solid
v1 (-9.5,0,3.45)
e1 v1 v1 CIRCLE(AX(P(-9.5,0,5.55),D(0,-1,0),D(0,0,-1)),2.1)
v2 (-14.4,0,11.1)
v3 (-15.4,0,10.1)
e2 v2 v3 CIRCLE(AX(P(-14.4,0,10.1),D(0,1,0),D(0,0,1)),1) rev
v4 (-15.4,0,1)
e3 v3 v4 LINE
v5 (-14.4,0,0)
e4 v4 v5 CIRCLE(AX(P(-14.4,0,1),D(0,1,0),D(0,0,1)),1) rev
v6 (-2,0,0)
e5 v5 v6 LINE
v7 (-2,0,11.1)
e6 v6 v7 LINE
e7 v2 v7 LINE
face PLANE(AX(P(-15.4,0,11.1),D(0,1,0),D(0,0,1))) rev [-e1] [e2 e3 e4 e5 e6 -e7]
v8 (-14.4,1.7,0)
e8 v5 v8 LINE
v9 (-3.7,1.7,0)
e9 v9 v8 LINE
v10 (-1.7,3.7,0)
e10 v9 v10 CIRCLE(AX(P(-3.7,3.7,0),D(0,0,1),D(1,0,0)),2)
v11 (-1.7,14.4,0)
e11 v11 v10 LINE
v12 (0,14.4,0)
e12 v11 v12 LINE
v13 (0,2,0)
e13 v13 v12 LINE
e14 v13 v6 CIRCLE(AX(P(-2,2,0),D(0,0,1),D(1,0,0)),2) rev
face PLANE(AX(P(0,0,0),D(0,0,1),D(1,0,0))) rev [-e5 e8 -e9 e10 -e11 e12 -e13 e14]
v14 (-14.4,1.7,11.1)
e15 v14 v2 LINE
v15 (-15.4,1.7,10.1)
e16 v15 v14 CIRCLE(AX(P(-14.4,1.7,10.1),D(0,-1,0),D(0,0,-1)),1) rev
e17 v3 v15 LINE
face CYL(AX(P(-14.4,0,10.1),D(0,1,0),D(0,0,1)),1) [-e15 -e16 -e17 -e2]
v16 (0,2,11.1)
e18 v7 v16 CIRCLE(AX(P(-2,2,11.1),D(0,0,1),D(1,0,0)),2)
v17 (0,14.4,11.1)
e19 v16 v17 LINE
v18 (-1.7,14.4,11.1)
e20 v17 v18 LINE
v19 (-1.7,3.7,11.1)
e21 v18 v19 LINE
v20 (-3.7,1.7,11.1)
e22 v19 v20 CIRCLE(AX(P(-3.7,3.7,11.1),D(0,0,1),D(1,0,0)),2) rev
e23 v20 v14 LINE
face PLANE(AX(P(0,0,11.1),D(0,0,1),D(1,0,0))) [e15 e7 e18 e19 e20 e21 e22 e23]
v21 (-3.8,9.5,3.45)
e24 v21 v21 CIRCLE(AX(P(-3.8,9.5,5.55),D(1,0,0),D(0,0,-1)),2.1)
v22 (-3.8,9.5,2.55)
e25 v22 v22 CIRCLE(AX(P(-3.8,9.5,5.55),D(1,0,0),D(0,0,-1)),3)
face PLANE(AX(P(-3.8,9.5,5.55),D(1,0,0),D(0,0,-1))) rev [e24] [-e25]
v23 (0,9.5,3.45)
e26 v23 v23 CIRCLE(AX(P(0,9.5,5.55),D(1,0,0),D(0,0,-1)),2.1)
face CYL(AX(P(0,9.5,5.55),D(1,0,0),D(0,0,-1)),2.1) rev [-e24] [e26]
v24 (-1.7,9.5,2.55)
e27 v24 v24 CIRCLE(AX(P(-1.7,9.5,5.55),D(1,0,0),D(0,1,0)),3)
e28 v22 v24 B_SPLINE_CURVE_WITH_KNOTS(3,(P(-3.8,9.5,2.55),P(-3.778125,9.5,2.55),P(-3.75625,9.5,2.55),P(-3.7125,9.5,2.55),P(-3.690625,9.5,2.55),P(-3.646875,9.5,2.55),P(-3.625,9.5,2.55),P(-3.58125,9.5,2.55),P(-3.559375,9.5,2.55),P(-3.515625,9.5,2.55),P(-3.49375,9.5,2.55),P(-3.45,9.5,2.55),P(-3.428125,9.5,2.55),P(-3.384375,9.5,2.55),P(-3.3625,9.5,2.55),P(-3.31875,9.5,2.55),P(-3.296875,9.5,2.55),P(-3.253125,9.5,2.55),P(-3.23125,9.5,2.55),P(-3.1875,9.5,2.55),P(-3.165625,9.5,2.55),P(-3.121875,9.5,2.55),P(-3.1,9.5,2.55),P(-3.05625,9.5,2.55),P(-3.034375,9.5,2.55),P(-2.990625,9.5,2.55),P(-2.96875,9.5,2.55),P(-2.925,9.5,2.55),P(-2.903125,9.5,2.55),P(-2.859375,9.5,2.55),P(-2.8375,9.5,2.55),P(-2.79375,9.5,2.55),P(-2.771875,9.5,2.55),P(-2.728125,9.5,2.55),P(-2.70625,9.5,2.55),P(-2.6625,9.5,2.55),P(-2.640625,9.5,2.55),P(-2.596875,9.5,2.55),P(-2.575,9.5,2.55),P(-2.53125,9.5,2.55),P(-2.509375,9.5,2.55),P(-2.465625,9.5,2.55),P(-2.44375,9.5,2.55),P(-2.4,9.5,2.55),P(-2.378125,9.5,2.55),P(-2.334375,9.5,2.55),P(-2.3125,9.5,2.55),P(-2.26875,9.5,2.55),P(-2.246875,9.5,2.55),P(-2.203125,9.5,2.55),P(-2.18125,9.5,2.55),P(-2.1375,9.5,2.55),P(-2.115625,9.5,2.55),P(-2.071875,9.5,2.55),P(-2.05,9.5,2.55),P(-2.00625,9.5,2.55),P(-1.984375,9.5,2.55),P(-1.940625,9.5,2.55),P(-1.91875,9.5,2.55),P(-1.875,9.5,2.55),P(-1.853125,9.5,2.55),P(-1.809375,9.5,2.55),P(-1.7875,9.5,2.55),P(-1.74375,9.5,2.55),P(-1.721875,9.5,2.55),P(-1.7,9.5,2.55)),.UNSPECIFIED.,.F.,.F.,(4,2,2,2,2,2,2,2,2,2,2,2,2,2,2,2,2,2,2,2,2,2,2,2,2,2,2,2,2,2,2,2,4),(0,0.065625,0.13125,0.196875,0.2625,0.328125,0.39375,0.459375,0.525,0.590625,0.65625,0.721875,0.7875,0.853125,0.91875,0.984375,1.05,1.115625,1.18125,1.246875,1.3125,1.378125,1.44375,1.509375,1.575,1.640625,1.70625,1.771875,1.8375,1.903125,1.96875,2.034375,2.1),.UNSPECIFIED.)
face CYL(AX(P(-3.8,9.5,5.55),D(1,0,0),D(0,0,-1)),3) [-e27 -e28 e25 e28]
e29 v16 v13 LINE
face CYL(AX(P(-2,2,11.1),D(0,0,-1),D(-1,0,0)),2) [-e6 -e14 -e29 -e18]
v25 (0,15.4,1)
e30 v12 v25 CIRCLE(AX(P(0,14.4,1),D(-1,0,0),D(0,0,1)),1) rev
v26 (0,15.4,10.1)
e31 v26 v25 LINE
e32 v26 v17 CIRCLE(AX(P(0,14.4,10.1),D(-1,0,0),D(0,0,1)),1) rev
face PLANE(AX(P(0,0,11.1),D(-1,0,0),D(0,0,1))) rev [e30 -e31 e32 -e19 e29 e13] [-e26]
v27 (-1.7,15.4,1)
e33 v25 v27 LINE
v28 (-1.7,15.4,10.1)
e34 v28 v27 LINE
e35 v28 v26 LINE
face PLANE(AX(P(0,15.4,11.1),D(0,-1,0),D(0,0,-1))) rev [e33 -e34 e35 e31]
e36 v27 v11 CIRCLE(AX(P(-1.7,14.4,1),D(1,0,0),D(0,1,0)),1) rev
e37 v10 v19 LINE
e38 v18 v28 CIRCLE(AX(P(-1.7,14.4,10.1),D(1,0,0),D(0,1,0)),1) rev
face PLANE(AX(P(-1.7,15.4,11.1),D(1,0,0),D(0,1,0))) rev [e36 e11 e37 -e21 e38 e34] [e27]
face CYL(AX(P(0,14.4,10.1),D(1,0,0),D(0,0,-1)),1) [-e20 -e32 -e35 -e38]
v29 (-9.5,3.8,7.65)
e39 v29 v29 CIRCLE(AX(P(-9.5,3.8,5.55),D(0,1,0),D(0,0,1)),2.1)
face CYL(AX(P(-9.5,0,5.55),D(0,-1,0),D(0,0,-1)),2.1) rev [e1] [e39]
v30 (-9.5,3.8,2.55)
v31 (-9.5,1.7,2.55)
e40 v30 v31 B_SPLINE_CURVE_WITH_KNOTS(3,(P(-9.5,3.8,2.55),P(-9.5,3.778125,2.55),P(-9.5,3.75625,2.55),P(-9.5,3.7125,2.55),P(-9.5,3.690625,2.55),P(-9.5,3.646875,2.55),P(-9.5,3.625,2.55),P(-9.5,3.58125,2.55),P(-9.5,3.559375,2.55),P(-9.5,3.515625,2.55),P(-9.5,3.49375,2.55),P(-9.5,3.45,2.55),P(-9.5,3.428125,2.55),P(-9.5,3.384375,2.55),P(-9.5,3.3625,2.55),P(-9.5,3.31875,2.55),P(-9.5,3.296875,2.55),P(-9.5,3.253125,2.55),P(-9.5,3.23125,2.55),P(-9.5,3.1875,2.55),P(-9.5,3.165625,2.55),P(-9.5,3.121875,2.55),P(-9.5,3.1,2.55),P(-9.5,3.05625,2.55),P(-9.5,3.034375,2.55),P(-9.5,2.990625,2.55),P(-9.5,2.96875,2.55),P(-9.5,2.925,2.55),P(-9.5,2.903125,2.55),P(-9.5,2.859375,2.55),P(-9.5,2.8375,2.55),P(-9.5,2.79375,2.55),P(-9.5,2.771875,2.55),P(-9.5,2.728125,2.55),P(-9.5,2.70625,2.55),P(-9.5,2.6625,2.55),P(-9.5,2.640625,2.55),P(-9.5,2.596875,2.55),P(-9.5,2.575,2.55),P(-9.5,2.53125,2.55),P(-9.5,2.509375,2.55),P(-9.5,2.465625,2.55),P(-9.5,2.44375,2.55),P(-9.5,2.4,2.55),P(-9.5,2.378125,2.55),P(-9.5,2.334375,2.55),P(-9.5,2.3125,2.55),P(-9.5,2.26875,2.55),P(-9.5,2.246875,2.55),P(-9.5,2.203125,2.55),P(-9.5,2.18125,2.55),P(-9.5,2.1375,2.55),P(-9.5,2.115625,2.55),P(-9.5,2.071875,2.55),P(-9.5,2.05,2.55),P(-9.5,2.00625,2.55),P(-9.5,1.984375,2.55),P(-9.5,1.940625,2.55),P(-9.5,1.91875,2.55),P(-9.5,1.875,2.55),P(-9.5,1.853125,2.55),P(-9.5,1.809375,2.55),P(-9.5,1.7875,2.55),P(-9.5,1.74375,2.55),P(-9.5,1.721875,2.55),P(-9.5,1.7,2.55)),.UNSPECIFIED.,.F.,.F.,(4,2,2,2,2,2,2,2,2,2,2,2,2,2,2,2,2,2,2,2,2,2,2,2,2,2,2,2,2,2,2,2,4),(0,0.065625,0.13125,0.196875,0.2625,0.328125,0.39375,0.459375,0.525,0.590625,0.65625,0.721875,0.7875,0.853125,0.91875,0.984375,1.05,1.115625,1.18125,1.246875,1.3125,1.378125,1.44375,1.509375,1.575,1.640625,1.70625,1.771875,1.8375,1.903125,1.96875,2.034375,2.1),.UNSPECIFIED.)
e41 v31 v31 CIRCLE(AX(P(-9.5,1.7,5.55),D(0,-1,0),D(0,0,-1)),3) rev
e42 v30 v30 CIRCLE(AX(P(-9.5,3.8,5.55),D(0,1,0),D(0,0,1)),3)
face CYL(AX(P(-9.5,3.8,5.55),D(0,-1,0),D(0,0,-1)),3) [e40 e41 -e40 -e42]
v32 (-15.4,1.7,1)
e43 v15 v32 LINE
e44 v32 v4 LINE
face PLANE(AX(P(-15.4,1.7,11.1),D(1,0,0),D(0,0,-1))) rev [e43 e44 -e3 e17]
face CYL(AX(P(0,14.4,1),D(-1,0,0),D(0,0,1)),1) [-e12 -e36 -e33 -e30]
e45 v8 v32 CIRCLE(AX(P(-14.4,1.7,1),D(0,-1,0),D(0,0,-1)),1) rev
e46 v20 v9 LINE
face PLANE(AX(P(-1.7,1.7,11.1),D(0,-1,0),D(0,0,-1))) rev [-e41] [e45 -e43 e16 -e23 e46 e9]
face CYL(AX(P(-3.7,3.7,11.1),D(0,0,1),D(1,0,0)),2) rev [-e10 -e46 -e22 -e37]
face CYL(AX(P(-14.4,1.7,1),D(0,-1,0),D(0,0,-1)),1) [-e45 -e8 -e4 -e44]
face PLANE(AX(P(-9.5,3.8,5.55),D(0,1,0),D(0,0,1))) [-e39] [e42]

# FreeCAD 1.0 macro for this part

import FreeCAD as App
import Part
import Sketcher

V = App.Vector


def edges_at(feature, points):
    """Names of the edges that pass closest to the given points."""
    edges = feature.Shape.Edges
    near = lambda p: min(range(len(edges)), key=lambda i: edges[i].distToShape(Part.Vertex(*p))[0])
    return sorted({f"Edge{near(p) + 1}" for p in points})

doc = App.newDocument("Part")
params = doc.addObject("Spreadsheet::Sheet", "Params")
for row, (alias, value) in enumerate([
    ("sketch1_width", "1.7 mm"),
    ("sketch1_width2", "13.7 mm"),
    ("pad1_length", "11.1 mm"),
    ("fillet_radius", "1 mm"),
    ("sketch2_diameter", "6 mm"),
    ("pad2_length", "3.8 mm"),
    ("sketch3_diameter", "6 mm"),
    ("pad3_length", "3.8 mm"),
    ("fillet2_radius", "2 mm"),
    ("sketch4_diameter", "4.2 mm"),
    ("hole_diameter", "4.2 mm"),
    ("sketch5_diameter", "4.2 mm"),
    ("hole2_diameter", "4.2 mm"),
], start=1):
    params.set(f"A{row}", alias)
    params.set(f"B{row}", "=" + value)
    params.setAlias(f"B{row}", alias)

body = doc.addObject("PartDesign::Body", "Body")

# Sketch on XY plane
sketch1 = body.newObject("Sketcher::SketchObject", "Sketch")
sketch1.AttachmentSupport = (doc.getObject("XY_Plane"), [""])
sketch1.MapMode = "FlatFace"
sketch1.addGeometry(Part.LineSegment(V(0, 0, 0), V(0, 15.4, 0)), False)
sketch1.addGeometry(Part.LineSegment(V(0, 15.4, 0), V(-1.7, 15.4, 0)), False)
sketch1.addGeometry(Part.LineSegment(V(-1.7, 15.4, 0), V(-1.7, 1.7, 0)), False)
sketch1.addGeometry(Part.LineSegment(V(-1.7, 1.7, 0), V(-15.4, 1.7, 0)), False)
sketch1.addGeometry(Part.LineSegment(V(-15.4, 1.7, 0), V(-15.4, 0, 0)), False)
sketch1.addGeometry(Part.LineSegment(V(-15.4, 0, 0), V(0, 0, 0)), False)
sketch1.addConstraint(Sketcher.Constraint("Coincident", 0, 2, 1, 1))
sketch1.addConstraint(Sketcher.Constraint("Coincident", 1, 2, 2, 1))
sketch1.addConstraint(Sketcher.Constraint("Coincident", 2, 2, 3, 1))
sketch1.addConstraint(Sketcher.Constraint("Coincident", 3, 2, 4, 1))
sketch1.addConstraint(Sketcher.Constraint("Coincident", 4, 2, 5, 1))
sketch1.addConstraint(Sketcher.Constraint("Coincident", 5, 2, 0, 1))
sketch1.addConstraint(Sketcher.Constraint("Vertical", 0))
sketch1.addConstraint(Sketcher.Constraint("Horizontal", 1))
sketch1.addConstraint(Sketcher.Constraint("Vertical", 2))
sketch1.addConstraint(Sketcher.Constraint("Horizontal", 3))
sketch1.addConstraint(Sketcher.Constraint("Vertical", 4))
sketch1.addConstraint(Sketcher.Constraint("Horizontal", 5))
sketch1.addConstraint(Sketcher.Constraint("Coincident", 5, 2, -1, 1))
sketch1.addConstraint(Sketcher.Constraint("Equal", 5, 0))
sketch1.addConstraint(Sketcher.Constraint("Equal", 3, 2))
sketch1.addConstraint(Sketcher.Constraint("DistanceX", 1, 2, 1, 1, 1.7))
sketch1.addConstraint(Sketcher.Constraint("DistanceX", 3, 2, 3, 1, 13.7))
sketch1.setExpression("Constraints[15]", "Params.sketch1_width")
sketch1.setExpression("Constraints[16]", "Params.sketch1_width2")
pad1 = body.newObject("PartDesign::Pad", "Pad")
pad1.Profile = sketch1
pad1.setExpression("Length", "Params.pad1_length")
doc.recompute()

fillet = body.newObject("PartDesign::Fillet", "Fillet")
fillet.Base = (pad1, edges_at(pad1, [
    (-0.85, 15.4, 11.1),
    (-15.4, 0.85, 11.1),
    (-15.4, 0.85, 0),
    (-0.85, 15.4, 0),
]))
fillet.setExpression("Radius", "Params.fillet_radius")

# Sketch on XZ plane
sketch2 = body.newObject("Sketcher::SketchObject", "Sketch001")
sketch2.AttachmentSupport = (doc.getObject("XZ_Plane"), [""])
sketch2.MapMode = "FlatFace"
sketch2.addGeometry(Part.Circle(V(-9.5, 5.5, 0), V(0, 0, 1), 3), False)
sketch2.addConstraint(Sketcher.Constraint("Diameter", 0, 6.0))
sketch2.addConstraint(Sketcher.Constraint("DistanceX", 0, 3, -1, 1, 9.5))
sketch2.addConstraint(Sketcher.Constraint("DistanceY", -1, 1, 0, 3, 5.55))
sketch2.setExpression("Constraints[0]", "Params.sketch2_diameter")
pad2 = body.newObject("PartDesign::Pad", "Pad001")
pad2.Profile = sketch2
pad2.setExpression("Length", "Params.pad2_length")
pad2.Reversed = True

# Sketch on YZ plane
sketch3 = body.newObject("Sketcher::SketchObject", "Sketch002")
sketch3.AttachmentSupport = (doc.getObject("YZ_Plane"), [""])
sketch3.MapMode = "FlatFace"
sketch3.addGeometry(Part.Circle(V(9.5, 5.5, 0), V(0, 0, 1), 3), False)
sketch3.addConstraint(Sketcher.Constraint("Diameter", 0, 6.0))
sketch3.addConstraint(Sketcher.Constraint("DistanceX", -1, 1, 0, 3, 9.5))
sketch3.addConstraint(Sketcher.Constraint("DistanceY", -1, 1, 0, 3, 5.55))
sketch3.setExpression("Constraints[0]", "Params.sketch3_diameter")
pad3 = body.newObject("PartDesign::Pad", "Pad002")
pad3.Profile = sketch3
pad3.setExpression("Length", "Params.pad3_length")
pad3.Reversed = True
doc.recompute()

fillet2 = body.newObject("PartDesign::Fillet", "Fillet001")
fillet2.Base = (pad3, edges_at(pad3, [(-1.7, 1.7, 5.55), (0, 0, 5.55)]))
fillet2.setExpression("Radius", "Params.fillet2_radius")

# Sketch on YZ plane
sketch4 = body.newObject("Sketcher::SketchObject", "Sketch003")
sketch4.AttachmentSupport = (doc.getObject("YZ_Plane"), [""])
sketch4.MapMode = "FlatFace"
sketch4.addGeometry(Part.Circle(V(9.5, 5.5, 0), V(0, 0, 1), 2.1), False)
sketch4.addConstraint(Sketcher.Constraint("Diameter", 0, 4.2))
sketch4.addConstraint(Sketcher.Constraint("DistanceX", -1, 1, 0, 3, 9.5))
sketch4.addConstraint(Sketcher.Constraint("DistanceY", -1, 1, 0, 3, 5.55))
sketch4.setExpression("Constraints[0]", "Params.sketch4_diameter")
doc.recompute()
hole = body.newObject("PartDesign::Hole", "Hole")
hole.Profile = sketch4
hole.ThreadType = "None"
hole.setExpression("Diameter", "Params.hole_diameter")
hole.DepthType = "ThroughAll"

# Sketch on XZ plane
sketch5 = body.newObject("Sketcher::SketchObject", "Sketch004")
sketch5.AttachmentSupport = (doc.getObject("XZ_Plane"), [""])
sketch5.MapMode = "FlatFace"
sketch5.addGeometry(Part.Circle(V(-9.5, 5.5, 0), V(0, 0, 1), 2.1), False)
sketch5.addConstraint(Sketcher.Constraint("Diameter", 0, 4.2))
sketch5.addConstraint(Sketcher.Constraint("DistanceX", 0, 3, -1, 1, 9.5))
sketch5.addConstraint(Sketcher.Constraint("DistanceY", -1, 1, 0, 3, 5.55))
sketch5.setExpression("Constraints[0]", "Params.sketch5_diameter")
doc.recompute()
hole2 = body.newObject("PartDesign::Hole", "Hole001")
hole2.Profile = sketch5
hole2.ThreadType = "None"
hole2.setExpression("Diameter", "Params.hole2_diameter")
hole2.DepthType = "ThroughAll"

doc.recompute()
